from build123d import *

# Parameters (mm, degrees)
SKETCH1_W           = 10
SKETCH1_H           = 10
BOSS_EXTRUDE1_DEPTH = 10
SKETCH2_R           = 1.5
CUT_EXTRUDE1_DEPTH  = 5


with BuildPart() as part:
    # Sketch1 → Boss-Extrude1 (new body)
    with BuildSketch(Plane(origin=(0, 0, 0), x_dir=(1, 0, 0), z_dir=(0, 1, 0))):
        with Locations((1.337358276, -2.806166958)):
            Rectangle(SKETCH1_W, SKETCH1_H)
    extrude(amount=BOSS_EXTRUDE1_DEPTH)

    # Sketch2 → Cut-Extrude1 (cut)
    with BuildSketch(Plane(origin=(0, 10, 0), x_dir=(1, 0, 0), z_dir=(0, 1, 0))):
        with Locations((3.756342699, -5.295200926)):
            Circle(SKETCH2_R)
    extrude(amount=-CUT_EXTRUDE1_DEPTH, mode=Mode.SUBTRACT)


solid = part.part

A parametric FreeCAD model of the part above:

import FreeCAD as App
import Part
import Sketcher

V = App.Vector


def add_polygon(sketch, points):
    """Adds a closed chain of lines whose ends are joined by coincident constraints."""
    first, n = sketch.GeometryCount, len(points)
    for a, b in zip(points, points[1:] + points[:1]):
        sketch.addGeometry(Part.LineSegment(App.Vector(*a, 0), App.Vector(*b, 0)), False)
    for i in range(n):
        sketch.addConstraint(Sketcher.Constraint("Coincident", first + i, 2, first + (i + 1) % n, 1))

doc = App.newDocument("Part")
params = doc.addObject("Spreadsheet::Sheet", "Params")
for row, (alias, value) in enumerate([
    ("sketch1_width", "10 mm"),
    ("pad1_length", "10 mm"),
    ("sketch2_diameter", "3 mm"),
    ("pocket1_length", "5 mm"),
], start=1):
    params.set(f"A{row}", alias)
    params.set(f"B{row}", "=" + value)
    params.setAlias(f"B{row}", alias)

body = doc.addObject("PartDesign::Body", "Body")

# Sketch on XZ plane
sketch1 = doc.addObject("Sketcher::SketchObject", "Sketch")
body.addObject(sketch1)
sketch1.AttachmentSupport = (doc.XZ_Plane, [""])
sketch1.MapMode = "FlatFace"
add_polygon(sketch1, [(-4, -2), (-4, 8), (6, 8), (6, -2)])  # lines 0-3
sketch1.addConstraint([
    Sketcher.Constraint("Vertical", 0),
    Sketcher.Constraint("Horizontal", 1),
    Sketcher.Constraint("Vertical", 2),
    Sketcher.Constraint("Horizontal", 3),
    Sketcher.Constraint("Equal", 3, 0),
    Sketcher.Constraint("DistanceX", 1, 1, 1, 2, 10.0),
    Sketcher.Constraint("DistanceX", 0, 2, -1, 1, 3.662642),
    Sketcher.Constraint("DistanceY", -1, 1, 0, 2, 7.806167),
])
sketch1.setExpression("Constraints[9]", "Params.sketch1_width")
pad1 = doc.addObject("PartDesign::Pad", "Pad")
body.addObject(pad1)
pad1.Profile = sketch1
pad1.setExpression("Length", "Params.pad1_length")
pad1.Reversed = True

# Sketch on XZ plane
sketch2 = doc.addObject("Sketcher::SketchObject", "Sketch001")
body.addObject(sketch2)
sketch2.AttachmentSupport = (doc.XZ_Plane, [""])
sketch2.MapMode = "FlatFace"
sketch2.AttachmentOffset = App.Placement(V(0, 0, -10), App.Rotation())
sketch2.addGeometry(Part.Circle(V(3.8, 5.3, 0), V(0, 0, 1), 1.5), False)
sketch2.addConstraint([
    Sketcher.Constraint("Diameter", 0, 3.0),
    Sketcher.Constraint("DistanceY", -1, 1, 0, 3, 5.295201),
    Sketcher.Constraint("DistanceX", -1, 1, 0, 3, 3.756343),
])
sketch2.setExpression("Constraints[0]", "Params.sketch2_diameter")
pocket1 = doc.addObject("PartDesign::Pocket", "Pocket")
body.addObject(pocket1)
pocket1.Profile = sketch2
pocket1.setExpression("Length", "Params.pocket1_length")
pocket1.Reversed = True

doc.recompute()
